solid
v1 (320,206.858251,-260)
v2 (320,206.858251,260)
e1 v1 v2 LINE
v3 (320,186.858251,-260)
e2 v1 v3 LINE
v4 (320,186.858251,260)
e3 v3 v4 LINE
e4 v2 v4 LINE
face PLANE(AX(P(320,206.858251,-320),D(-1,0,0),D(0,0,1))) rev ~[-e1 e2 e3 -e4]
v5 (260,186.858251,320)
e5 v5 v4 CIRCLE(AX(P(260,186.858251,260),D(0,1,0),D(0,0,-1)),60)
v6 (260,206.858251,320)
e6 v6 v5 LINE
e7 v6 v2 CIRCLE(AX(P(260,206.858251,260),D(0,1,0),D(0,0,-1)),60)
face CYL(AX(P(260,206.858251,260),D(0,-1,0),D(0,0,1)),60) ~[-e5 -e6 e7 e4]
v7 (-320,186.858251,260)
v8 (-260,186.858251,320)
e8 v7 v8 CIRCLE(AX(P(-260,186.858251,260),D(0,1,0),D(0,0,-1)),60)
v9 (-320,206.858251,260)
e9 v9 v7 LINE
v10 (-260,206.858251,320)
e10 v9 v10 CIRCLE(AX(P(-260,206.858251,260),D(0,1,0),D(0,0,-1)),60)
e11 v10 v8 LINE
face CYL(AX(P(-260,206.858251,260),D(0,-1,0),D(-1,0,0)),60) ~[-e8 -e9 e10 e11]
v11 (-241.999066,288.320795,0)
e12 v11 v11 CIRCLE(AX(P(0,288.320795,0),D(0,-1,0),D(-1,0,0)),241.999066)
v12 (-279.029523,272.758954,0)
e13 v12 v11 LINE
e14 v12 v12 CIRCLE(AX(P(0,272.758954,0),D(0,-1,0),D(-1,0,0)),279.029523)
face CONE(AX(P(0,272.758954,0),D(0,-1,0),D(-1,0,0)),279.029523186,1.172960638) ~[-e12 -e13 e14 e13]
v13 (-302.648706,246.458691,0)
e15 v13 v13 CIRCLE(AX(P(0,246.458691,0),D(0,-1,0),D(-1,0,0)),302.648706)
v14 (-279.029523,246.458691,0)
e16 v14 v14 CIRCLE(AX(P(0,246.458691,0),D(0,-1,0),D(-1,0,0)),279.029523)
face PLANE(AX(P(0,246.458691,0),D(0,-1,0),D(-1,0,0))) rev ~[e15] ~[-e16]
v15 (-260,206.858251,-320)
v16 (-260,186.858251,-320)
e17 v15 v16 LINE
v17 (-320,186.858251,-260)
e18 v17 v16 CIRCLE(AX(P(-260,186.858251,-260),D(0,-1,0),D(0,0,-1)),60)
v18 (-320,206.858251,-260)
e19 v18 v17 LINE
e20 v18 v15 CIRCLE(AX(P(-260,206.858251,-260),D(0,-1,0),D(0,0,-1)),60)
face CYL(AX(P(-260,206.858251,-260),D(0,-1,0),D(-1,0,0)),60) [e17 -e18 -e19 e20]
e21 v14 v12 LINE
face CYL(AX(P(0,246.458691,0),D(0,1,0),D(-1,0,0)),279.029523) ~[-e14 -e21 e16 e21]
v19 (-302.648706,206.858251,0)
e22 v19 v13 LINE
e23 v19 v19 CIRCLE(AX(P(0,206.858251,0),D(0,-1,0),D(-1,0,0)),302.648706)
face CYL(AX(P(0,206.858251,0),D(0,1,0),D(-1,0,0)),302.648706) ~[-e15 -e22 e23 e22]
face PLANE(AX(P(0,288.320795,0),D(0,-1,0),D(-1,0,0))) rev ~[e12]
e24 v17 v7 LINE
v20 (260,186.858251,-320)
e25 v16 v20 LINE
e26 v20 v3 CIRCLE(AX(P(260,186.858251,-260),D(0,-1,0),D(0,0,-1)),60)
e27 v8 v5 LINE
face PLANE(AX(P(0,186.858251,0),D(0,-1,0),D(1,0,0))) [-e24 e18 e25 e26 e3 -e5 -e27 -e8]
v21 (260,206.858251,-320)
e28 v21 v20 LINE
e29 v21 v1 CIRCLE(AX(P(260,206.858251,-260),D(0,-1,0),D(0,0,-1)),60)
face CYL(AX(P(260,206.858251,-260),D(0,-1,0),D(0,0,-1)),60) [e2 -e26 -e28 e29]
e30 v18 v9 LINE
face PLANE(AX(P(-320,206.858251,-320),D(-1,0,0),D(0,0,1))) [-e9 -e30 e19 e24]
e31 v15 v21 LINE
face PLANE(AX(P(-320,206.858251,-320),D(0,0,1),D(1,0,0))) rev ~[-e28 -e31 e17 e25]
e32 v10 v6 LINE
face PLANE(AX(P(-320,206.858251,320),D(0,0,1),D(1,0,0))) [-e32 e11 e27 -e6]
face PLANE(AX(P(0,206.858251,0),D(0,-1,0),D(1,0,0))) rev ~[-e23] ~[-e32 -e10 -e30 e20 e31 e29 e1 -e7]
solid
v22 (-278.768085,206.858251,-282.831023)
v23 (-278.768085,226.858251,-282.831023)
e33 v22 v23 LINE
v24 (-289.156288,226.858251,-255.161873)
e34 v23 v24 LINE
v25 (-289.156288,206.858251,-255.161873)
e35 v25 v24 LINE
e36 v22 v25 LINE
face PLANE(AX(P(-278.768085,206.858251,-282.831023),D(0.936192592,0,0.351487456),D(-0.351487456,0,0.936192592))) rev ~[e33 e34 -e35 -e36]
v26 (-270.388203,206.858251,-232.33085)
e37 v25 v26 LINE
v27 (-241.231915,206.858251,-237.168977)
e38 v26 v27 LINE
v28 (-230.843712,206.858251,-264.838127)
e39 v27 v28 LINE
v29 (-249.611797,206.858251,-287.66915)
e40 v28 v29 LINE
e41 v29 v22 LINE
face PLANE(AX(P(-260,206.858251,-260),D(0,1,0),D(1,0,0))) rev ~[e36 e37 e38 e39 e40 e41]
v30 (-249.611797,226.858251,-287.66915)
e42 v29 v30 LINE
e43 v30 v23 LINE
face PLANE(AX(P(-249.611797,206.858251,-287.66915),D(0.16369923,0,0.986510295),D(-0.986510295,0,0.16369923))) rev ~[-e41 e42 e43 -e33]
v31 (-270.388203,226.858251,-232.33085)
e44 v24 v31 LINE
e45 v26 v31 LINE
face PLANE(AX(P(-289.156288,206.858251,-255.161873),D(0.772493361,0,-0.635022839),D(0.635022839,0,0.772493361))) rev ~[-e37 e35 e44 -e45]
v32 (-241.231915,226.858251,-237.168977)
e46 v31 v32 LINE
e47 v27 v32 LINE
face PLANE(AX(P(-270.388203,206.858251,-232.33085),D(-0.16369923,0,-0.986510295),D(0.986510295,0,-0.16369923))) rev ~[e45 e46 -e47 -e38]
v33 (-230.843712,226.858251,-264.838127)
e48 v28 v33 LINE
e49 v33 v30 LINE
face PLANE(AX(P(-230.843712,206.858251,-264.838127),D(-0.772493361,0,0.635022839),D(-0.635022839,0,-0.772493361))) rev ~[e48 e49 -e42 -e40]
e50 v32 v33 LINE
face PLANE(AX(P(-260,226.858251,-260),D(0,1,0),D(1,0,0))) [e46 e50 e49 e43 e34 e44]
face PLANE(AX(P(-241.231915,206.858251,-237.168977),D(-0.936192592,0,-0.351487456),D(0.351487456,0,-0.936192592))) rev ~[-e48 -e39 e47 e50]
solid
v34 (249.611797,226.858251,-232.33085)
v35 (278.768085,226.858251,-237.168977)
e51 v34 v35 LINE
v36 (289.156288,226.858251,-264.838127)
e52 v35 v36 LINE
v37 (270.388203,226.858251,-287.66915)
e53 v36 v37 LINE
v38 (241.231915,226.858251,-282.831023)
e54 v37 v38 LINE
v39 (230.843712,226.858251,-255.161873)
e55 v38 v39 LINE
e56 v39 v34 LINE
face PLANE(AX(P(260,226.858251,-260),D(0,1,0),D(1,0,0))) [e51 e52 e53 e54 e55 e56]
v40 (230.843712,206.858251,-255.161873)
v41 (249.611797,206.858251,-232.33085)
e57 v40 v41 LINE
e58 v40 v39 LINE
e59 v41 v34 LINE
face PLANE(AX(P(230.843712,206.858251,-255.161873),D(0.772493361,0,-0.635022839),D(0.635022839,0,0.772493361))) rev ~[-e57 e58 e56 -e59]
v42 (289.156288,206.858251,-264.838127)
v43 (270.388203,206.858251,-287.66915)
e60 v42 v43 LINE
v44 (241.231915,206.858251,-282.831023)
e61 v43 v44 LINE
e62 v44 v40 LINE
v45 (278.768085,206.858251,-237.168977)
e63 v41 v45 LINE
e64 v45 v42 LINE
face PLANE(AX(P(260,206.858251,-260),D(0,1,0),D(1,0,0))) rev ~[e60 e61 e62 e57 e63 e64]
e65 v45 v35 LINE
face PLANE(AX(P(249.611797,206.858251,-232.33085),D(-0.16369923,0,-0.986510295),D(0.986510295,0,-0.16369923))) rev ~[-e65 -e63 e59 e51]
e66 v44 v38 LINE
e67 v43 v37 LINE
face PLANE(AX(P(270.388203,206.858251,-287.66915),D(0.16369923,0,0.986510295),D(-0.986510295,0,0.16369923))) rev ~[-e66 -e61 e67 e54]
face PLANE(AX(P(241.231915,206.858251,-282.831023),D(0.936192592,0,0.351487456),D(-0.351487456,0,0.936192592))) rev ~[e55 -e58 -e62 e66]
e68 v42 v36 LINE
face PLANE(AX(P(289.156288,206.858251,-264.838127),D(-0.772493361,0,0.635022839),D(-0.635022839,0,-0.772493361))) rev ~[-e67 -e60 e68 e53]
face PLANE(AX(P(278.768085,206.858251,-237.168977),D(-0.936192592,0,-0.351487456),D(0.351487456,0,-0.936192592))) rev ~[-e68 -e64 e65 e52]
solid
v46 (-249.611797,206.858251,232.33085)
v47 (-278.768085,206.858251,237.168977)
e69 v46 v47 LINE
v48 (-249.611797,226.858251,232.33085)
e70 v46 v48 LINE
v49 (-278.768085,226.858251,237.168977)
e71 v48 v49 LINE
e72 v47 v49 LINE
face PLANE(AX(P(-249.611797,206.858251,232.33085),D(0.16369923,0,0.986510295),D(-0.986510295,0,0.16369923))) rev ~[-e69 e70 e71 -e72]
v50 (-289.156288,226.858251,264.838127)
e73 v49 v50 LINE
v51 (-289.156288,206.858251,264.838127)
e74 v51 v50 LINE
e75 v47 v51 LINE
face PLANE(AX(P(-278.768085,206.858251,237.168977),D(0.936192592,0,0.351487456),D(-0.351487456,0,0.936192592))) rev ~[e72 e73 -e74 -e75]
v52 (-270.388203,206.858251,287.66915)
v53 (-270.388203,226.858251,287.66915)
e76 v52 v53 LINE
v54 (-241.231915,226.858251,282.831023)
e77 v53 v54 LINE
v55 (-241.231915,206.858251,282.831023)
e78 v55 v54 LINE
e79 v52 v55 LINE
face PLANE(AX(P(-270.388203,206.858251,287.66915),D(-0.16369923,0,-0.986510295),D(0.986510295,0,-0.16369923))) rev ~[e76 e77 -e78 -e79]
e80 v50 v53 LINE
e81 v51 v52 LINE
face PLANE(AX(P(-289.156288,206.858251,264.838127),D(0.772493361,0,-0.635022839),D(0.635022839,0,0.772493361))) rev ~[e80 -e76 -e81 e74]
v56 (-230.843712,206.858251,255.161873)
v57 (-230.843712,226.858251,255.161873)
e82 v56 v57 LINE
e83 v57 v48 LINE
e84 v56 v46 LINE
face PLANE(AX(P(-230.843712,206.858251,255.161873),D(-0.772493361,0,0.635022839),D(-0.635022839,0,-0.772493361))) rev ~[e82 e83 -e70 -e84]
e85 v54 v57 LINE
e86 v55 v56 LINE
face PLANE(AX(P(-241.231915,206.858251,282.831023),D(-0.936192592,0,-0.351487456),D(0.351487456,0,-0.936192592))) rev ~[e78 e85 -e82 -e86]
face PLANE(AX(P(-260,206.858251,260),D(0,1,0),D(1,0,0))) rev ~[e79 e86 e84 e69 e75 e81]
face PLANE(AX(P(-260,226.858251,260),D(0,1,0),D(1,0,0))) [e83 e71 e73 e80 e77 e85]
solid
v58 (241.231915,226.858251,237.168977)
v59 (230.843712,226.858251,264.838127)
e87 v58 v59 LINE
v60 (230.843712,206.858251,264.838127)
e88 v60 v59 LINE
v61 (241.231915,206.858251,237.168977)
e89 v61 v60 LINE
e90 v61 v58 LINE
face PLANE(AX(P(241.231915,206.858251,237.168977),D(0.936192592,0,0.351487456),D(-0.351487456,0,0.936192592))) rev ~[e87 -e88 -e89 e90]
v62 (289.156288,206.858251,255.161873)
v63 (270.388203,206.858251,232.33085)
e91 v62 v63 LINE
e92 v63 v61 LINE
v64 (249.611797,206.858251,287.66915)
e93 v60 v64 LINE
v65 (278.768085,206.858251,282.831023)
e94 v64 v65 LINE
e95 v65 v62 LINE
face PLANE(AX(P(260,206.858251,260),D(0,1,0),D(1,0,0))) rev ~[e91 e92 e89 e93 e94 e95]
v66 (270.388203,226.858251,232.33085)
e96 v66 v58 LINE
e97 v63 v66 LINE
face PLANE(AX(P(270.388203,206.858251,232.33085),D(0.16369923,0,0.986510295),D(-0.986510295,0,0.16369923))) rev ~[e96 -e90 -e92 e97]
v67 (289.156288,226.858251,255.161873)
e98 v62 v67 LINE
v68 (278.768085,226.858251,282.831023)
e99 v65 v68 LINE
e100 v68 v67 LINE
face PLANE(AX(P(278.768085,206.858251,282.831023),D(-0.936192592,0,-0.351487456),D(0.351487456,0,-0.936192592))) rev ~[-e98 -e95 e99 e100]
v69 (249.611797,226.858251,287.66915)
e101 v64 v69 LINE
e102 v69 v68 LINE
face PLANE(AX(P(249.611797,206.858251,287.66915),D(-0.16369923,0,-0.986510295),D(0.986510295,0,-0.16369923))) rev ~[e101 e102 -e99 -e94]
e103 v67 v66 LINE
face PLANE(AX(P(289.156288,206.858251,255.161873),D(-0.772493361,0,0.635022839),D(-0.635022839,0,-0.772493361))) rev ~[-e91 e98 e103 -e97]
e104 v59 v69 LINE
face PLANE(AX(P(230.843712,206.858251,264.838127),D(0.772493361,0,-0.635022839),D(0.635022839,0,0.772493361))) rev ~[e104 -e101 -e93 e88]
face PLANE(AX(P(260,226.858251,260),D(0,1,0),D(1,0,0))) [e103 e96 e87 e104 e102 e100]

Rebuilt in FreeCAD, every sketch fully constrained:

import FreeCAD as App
import Part
import Sketcher

V = App.Vector
Q = App.Units.Quantity


def edges_at(feature, points):
    """Names of the edges that pass closest to the given points."""
    edges = feature.Shape.Edges
    near = lambda p: min(range(len(edges)), key=lambda i: edges[i].distToShape(Part.Vertex(*p))[0])
    return sorted({f"Edge{near(p) + 1}" for p in points})

doc = App.newDocument("Part")
body = doc.addObject("PartDesign::Body", "Body")

# Sketch on XY plane
sketch1 = body.newObject("Sketcher::SketchObject", "Sketch")
sketch1.AttachmentSupport = (doc.getObject("XY_Plane"), [""])
sketch1.MapMode = "FlatFace"
sketch1.addGeometry(Part.LineSegment(V(-302.648706, 246.458691, 0), V(-302.648706, 206.858251, 0)), False)
sketch1.addGeometry(Part.LineSegment(V(-302.648706, 206.858251, 0), V(0, 206.858251, 0)), False)
sketch1.addGeometry(Part.LineSegment(V(0, 206.858251, 0), V(0, 288.320795, 0)), False)
sketch1.addGeometry(Part.LineSegment(V(0, 288.320795, 0), V(-241.999066, 288.320795, 0)), False)
sketch1.addGeometry(Part.LineSegment(V(-241.999066, 288.320795, 0), V(-279.029523, 272.758954, 0)), False)
sketch1.addGeometry(Part.LineSegment(V(-279.029523, 272.758954, 0), V(-279.029523, 246.458691, 0)), False)
sketch1.addGeometry(Part.LineSegment(V(-279.029523, 246.458691, 0), V(-302.648706, 246.458691, 0)), False)
sketch1.addConstraint(Sketcher.Constraint("Coincident", 0, 2, 1, 1))
sketch1.addConstraint(Sketcher.Constraint("Coincident", 1, 2, 2, 1))
sketch1.addConstraint(Sketcher.Constraint("Coincident", 2, 2, 3, 1))
sketch1.addConstraint(Sketcher.Constraint("Coincident", 3, 2, 4, 1))
sketch1.addConstraint(Sketcher.Constraint("Coincident", 4, 2, 5, 1))
sketch1.addConstraint(Sketcher.Constraint("Coincident", 5, 2, 6, 1))
sketch1.addConstraint(Sketcher.Constraint("Coincident", 6, 2, 0, 1))
sketch1.addConstraint(Sketcher.Constraint("Vertical", 0))
sketch1.addConstraint(Sketcher.Constraint("Horizontal", 1))
sketch1.addConstraint(Sketcher.Constraint("Vertical", 2))
sketch1.addConstraint(Sketcher.Constraint("Horizontal", 3))
sketch1.addConstraint(Sketcher.Constraint("Vertical", 5))
sketch1.addConstraint(Sketcher.Constraint("Horizontal", 6))
sketch1.addConstraint(Sketcher.Constraint("PointOnObject", 1, 2, -2))
sketch1.addConstraint(Sketcher.Constraint("DistanceY", 0, 2, 0, 1, Q("39.60044 mm")))
sketch1.addConstraint(Sketcher.Constraint("Distance", 4, Q("40.16747 mm")))
sketch1.addConstraint(Sketcher.Constraint("DistanceX", 1, 1, 1, 2, Q("302.648706 mm")))
sketch1.addConstraint(Sketcher.Constraint("DistanceX", 3, 2, 3, 1, Q("241.999066 mm")))
sketch1.addConstraint(Sketcher.Constraint("DistanceX", 6, 2, 6, 1, Q("23.619183 mm")))
sketch1.addConstraint(Sketcher.Constraint("DistanceY", 2, 1, 2, 2, Q("81.462544 mm")))
sketch1.addConstraint(Sketcher.Constraint("DistanceY", -1, 1, 0, 2, Q("206.858251 mm")))
revolution = body.newObject("PartDesign::Revolution", "Revolution")
revolution.Profile = sketch1
revolution.ReferenceAxis = (sketch1, ["V_Axis"])
revolution.Angle = 360

# Sketch on XZ plane
sketch2 = body.newObject("Sketcher::SketchObject", "Sketch001")
sketch2.AttachmentSupport = (doc.getObject("XZ_Plane"), [""])
sketch2.MapMode = "FlatFace"
sketch2.AttachmentOffset = App.Placement(V(0, 0, -206.858251), App.Rotation())
sketch2.addGeometry(Part.LineSegment(V(-320, 320, 0), V(-320, -320, 0)), False)
sketch2.addGeometry(Part.LineSegment(V(-320, -320, 0), V(320, -320, 0)), False)
sketch2.addGeometry(Part.LineSegment(V(320, -320, 0), V(320, 320, 0)), False)
sketch2.addGeometry(Part.LineSegment(V(320, 320, 0), V(-320, 320, 0)), False)
sketch2.addConstraint(Sketcher.Constraint("Coincident", 0, 2, 1, 1))
sketch2.addConstraint(Sketcher.Constraint("Coincident", 1, 2, 2, 1))
sketch2.addConstraint(Sketcher.Constraint("Coincident", 2, 2, 3, 1))
sketch2.addConstraint(Sketcher.Constraint("Coincident", 3, 2, 0, 1))
sketch2.addConstraint(Sketcher.Constraint("Vertical", 0))
sketch2.addConstraint(Sketcher.Constraint("Horizontal", 1))
sketch2.addConstraint(Sketcher.Constraint("Vertical", 2))
sketch2.addConstraint(Sketcher.Constraint("Horizontal", 3))
sketch2.addConstraint(Sketcher.Constraint("Symmetric", 0, 2, 2, 2, -1, 1))
sketch2.addConstraint(Sketcher.Constraint("Equal", 3, 0))
sketch2.addConstraint(Sketcher.Constraint("DistanceX", 1, 1, 1, 2, Q("640 mm")))
pad1 = body.newObject("PartDesign::Pad", "Pad")
pad1.Profile = sketch2
pad1.Length = 20
doc.recompute()

fillet = body.newObject("PartDesign::Fillet", "Fillet")
fillet.Base = (pad1, edges_at(pad1, [
    (-320, 196.858, 320),
    (-320, 196.858, -320),
    (320, 196.858, -320),
    (320, 196.858, 320),
]))
fillet.Radius = 60
body2 = doc.addObject("PartDesign::Body", "Body001")

# Sketch on XZ plane
sketch3 = body2.newObject("Sketcher::SketchObject", "Sketch002")
sketch3.AttachmentSupport = (doc.getObject("XZ_Plane001"), [""])
sketch3.MapMode = "FlatFace"
sketch3.AttachmentOffset = App.Placement(V(0, 0, -206.858251), App.Rotation())
sketch3.addGeometry(Part.LineSegment(V(278.768085, 282.831023, 0), V(289.156288, 255.161873, 0)), False)
sketch3.addGeometry(Part.LineSegment(V(289.156288, 255.161873, 0), V(270.388203, 232.33085, 0)), False)
sketch3.addGeometry(Part.LineSegment(V(270.388203, 232.33085, 0), V(241.231915, 237.168977, 0)), False)
sketch3.addGeometry(Part.LineSegment(V(241.231915, 237.168977, 0), V(230.843712, 264.838127, 0)), False)
sketch3.addGeometry(Part.LineSegment(V(230.843712, 264.838127, 0), V(249.611797, 287.66915, 0)), False)
sketch3.addGeometry(Part.LineSegment(V(249.611797, 287.66915, 0), V(278.768085, 282.831023, 0)), False)
sketch3.addConstraint(Sketcher.Constraint("Coincident", 0, 2, 1, 1))
sketch3.addConstraint(Sketcher.Constraint("Coincident", 1, 2, 2, 1))
sketch3.addConstraint(Sketcher.Constraint("Coincident", 2, 2, 3, 1))
sketch3.addConstraint(Sketcher.Constraint("Coincident", 3, 2, 4, 1))
sketch3.addConstraint(Sketcher.Constraint("Coincident", 4, 2, 5, 1))
sketch3.addConstraint(Sketcher.Constraint("Coincident", 5, 2, 0, 1))
sketch3.addConstraint(Sketcher.Constraint("Parallel", 0, 3))
sketch3.addConstraint(Sketcher.Constraint("Parallel", 1, 4))
sketch3.addConstraint(Sketcher.Constraint("Parallel", 2, 5))
sketch3.addConstraint(Sketcher.Constraint("Equal", 0, 1))
sketch3.addConstraint(Sketcher.Constraint("Equal", 1, 2))
sketch3.addConstraint(Sketcher.Constraint("Equal", 2, 3))
sketch3.addConstraint(Sketcher.Constraint("DistanceY", 1, 2, 4, 2, Q("55.3383 mm")))
sketch3.addConstraint(Sketcher.Constraint("DistanceX", -1, 1, 0, 2, Q("289.156288 mm")))
sketch3.addConstraint(Sketcher.Constraint("DistanceY", -1, 1, 1, 2, Q("232.33085 mm")))
sketch3.addConstraint(Sketcher.Constraint("DistanceX", -1, 1, 3, 2, Q("230.843712 mm")))
sketch3.addConstraint(Sketcher.Constraint("DistanceX", 2, 2, 1, 2, Q("29.156288 mm")))
sketch3.addConstraint(Sketcher.Constraint("DistanceY", 2, 2, 3, 2, Q("27.66915 mm")))
pad2 = body2.newObject("PartDesign::Pad", "Pad001")
pad2.Profile = sketch3
pad2.Length = 20
pad2.Reversed = True
body3 = doc.addObject("PartDesign::Body", "Body002")

# Sketch on XZ plane
sketch4 = body3.newObject("Sketcher::SketchObject", "Sketch003")
sketch4.AttachmentSupport = (doc.getObject("XZ_Plane002"), [""])
sketch4.MapMode = "FlatFace"
sketch4.AttachmentOffset = App.Placement(V(0, 0, -206.858251), App.Rotation())
sketch4.addGeometry(Part.LineSegment(V(-241.231915, 282.831023, 0), V(-230.843712, 255.161873, 0)), False)
sketch4.addGeometry(Part.LineSegment(V(-230.843712, 255.161873, 0), V(-249.611797, 232.33085, 0)), False)
sketch4.addGeometry(Part.LineSegment(V(-249.611797, 232.33085, 0), V(-278.768085, 237.168977, 0)), False)
sketch4.addGeometry(Part.LineSegment(V(-278.768085, 237.168977, 0), V(-289.156288, 264.838127, 0)), False)
sketch4.addGeometry(Part.LineSegment(V(-289.156288, 264.838127, 0), V(-270.388203, 287.66915, 0)), False)
sketch4.addGeometry(Part.LineSegment(V(-270.388203, 287.66915, 0), V(-241.231915, 282.831023, 0)), False)
sketch4.addConstraint(Sketcher.Constraint("Coincident", 0, 2, 1, 1))
sketch4.addConstraint(Sketcher.Constraint("Coincident", 1, 2, 2, 1))
sketch4.addConstraint(Sketcher.Constraint("Coincident", 2, 2, 3, 1))
sketch4.addConstraint(Sketcher.Constraint("Coincident", 3, 2, 4, 1))
sketch4.addConstraint(Sketcher.Constraint("Coincident", 4, 2, 5, 1))
sketch4.addConstraint(Sketcher.Constraint("Coincident", 5, 2, 0, 1))
sketch4.addConstraint(Sketcher.Constraint("Parallel", 0, 3))
sketch4.addConstraint(Sketcher.Constraint("Parallel", 1, 4))
sketch4.addConstraint(Sketcher.Constraint("Parallel", 2, 5))
sketch4.addConstraint(Sketcher.Constraint("Equal", 0, 1))
sketch4.addConstraint(Sketcher.Constraint("Equal", 1, 2))
sketch4.addConstraint(Sketcher.Constraint("Equal", 2, 3))
sketch4.addConstraint(Sketcher.Constraint("DistanceY", 1, 2, 4, 2, Q("55.3383 mm")))
sketch4.addConstraint(Sketcher.Constraint("DistanceX", 0, 2, -1, 1, Q("230.843712 mm")))
sketch4.addConstraint(Sketcher.Constraint("DistanceY", -1, 1, 1, 2, Q("232.33085 mm")))
sketch4.addConstraint(Sketcher.Constraint("DistanceX", 3, 2, -1, 1, Q("289.156288 mm")))
sketch4.addConstraint(Sketcher.Constraint("DistanceX", 2, 2, 1, 2, Q("29.156288 mm")))
sketch4.addConstraint(Sketcher.Constraint("DistanceY", 2, 2, 3, 2, Q("27.66915 mm")))
pad3 = body3.newObject("PartDesign::Pad", "Pad002")
pad3.Profile = sketch4
pad3.Length = 20
pad3.Reversed = True
body4 = doc.addObject("PartDesign::Body", "Body003")

# Sketch on XZ plane
sketch5 = body4.newObject("Sketcher::SketchObject", "Sketch004")
sketch5.AttachmentSupport = (doc.getObject("XZ_Plane003"), [""])
sketch5.MapMode = "FlatFace"
sketch5.AttachmentOffset = App.Placement(V(0, 0, -206.858251), App.Rotation())
sketch5.addGeometry(Part.LineSegment(V(230.843712, -255.161873, 0), V(249.611797, -232.33085, 0)), False)
sketch5.addGeometry(Part.LineSegment(V(249.611797, -232.33085, 0), V(278.768085, -237.168977, 0)), False)
sketch5.addGeometry(Part.LineSegment(V(278.768085, -237.168977, 0), V(289.156288, -264.838127, 0)), False)
sketch5.addGeometry(Part.LineSegment(V(289.156288, -264.838127, 0), V(270.388203, -287.66915, 0)), False)
sketch5.addGeometry(Part.LineSegment(V(270.388203, -287.66915, 0), V(241.231915, -282.831023, 0)), False)
sketch5.addGeometry(Part.LineSegment(V(241.231915, -282.831023, 0), V(230.843712, -255.161873, 0)), False)
sketch5.addConstraint(Sketcher.Constraint("Coincident", 0, 2, 1, 1))
sketch5.addConstraint(Sketcher.Constraint("Coincident", 1, 2, 2, 1))
sketch5.addConstraint(Sketcher.Constraint("Coincident", 2, 2, 3, 1))
sketch5.addConstraint(Sketcher.Constraint("Coincident", 3, 2, 4, 1))
sketch5.addConstraint(Sketcher.Constraint("Coincident", 4, 2, 5, 1))
sketch5.addConstraint(Sketcher.Constraint("Coincident", 5, 2, 0, 1))
sketch5.addConstraint(Sketcher.Constraint("Parallel", 0, 3))
sketch5.addConstraint(Sketcher.Constraint("Parallel", 1, 4))
sketch5.addConstraint(Sketcher.Constraint("Parallel", 2, 5))
sketch5.addConstraint(Sketcher.Constraint("Equal", 0, 1))
sketch5.addConstraint(Sketcher.Constraint("Equal", 1, 2))
sketch5.addConstraint(Sketcher.Constraint("Equal", 2, 3))
sketch5.addConstraint(Sketcher.Constraint("DistanceY", 3, 2, 0, 2, Q("55.3383 mm")))
sketch5.addConstraint(Sketcher.Constraint("DistanceY", 0, 2, -1, 1, Q("232.33085 mm")))
sketch5.addConstraint(Sketcher.Constraint("DistanceX", -1, 1, 2, 2, Q("289.156288 mm")))
sketch5.addConstraint(Sketcher.Constraint("DistanceX", -1, 1, 5, 2, Q("230.843712 mm")))
sketch5.addConstraint(Sketcher.Constraint("DistanceX", 0, 2, 1, 2, Q("29.156288 mm")))
sketch5.addConstraint(Sketcher.Constraint("DistanceY", 2, 2, 1, 2, Q("27.66915 mm")))
pad4 = body4.newObject("PartDesign::Pad", "Pad003")
pad4.Profile = sketch5
pad4.Length = 20
pad4.Reversed = True
body5 = doc.addObject("PartDesign::Body", "Body004")

# Sketch on XZ plane
sketch6 = body5.newObject("Sketcher::SketchObject", "Sketch005")
sketch6.AttachmentSupport = (doc.getObject("XZ_Plane004"), [""])
sketch6.MapMode = "FlatFace"
sketch6.AttachmentOffset = App.Placement(V(0, 0, -206.858251), App.Rotation())
sketch6.addGeometry(Part.LineSegment(V(-289.156288, -255.161873, 0), V(-270.388203, -232.33085, 0)), False)
sketch6.addGeometry(Part.LineSegment(V(-270.388203, -232.33085, 0), V(-241.231915, -237.168977, 0)), False)
sketch6.addGeometry(Part.LineSegment(V(-241.231915, -237.168977, 0), V(-230.843712, -264.838127, 0)), False)
sketch6.addGeometry(Part.LineSegment(V(-230.843712, -264.838127, 0), V(-249.611797, -287.66915, 0)), False)
sketch6.addGeometry(Part.LineSegment(V(-249.611797, -287.66915, 0), V(-278.768085, -282.831023, 0)), False)
sketch6.addGeometry(Part.LineSegment(V(-278.768085, -282.831023, 0), V(-289.156288, -255.161873, 0)), False)
sketch6.addConstraint(Sketcher.Constraint("Coincident", 0, 2, 1, 1))
sketch6.addConstraint(Sketcher.Constraint("Coincident", 1, 2, 2, 1))
sketch6.addConstraint(Sketcher.Constraint("Coincident", 2, 2, 3, 1))
sketch6.addConstraint(Sketcher.Constraint("Coincident", 3, 2, 4, 1))
sketch6.addConstraint(Sketcher.Constraint("Coincident", 4, 2, 5, 1))
sketch6.addConstraint(Sketcher.Constraint("Coincident", 5, 2, 0, 1))
sketch6.addConstraint(Sketcher.Constraint("Parallel", 0, 3))
sketch6.addConstraint(Sketcher.Constraint("Parallel", 1, 4))
sketch6.addConstraint(Sketcher.Constraint("Parallel", 2, 5))
sketch6.addConstraint(Sketcher.Constraint("Equal", 0, 1))
sketch6.addConstraint(Sketcher.Constraint("Equal", 1, 2))
sketch6.addConstraint(Sketcher.Constraint("Equal", 2, 3))
sketch6.addConstraint(Sketcher.Constraint("DistanceY", 3, 2, 0, 2, Q("55.3383 mm")))
sketch6.addConstraint(Sketcher.Constraint("DistanceY", 0, 2, -1, 1, Q("232.33085 mm")))
sketch6.addConstraint(Sketcher.Constraint("DistanceX", 2, 2, -1, 1, Q("230.843712 mm")))
sketch6.addConstraint(Sketcher.Constraint("DistanceX", 5, 2, -1, 1, Q("289.156288 mm")))
sketch6.addConstraint(Sketcher.Constraint("DistanceX", 0, 2, 1, 2, Q("29.156288 mm")))
sketch6.addConstraint(Sketcher.Constraint("DistanceY", 2, 2, 1, 2, Q("27.66915 mm")))
pad5 = body5.newObject("PartDesign::Pad", "Pad004")
pad5.Profile = sketch6
pad5.Length = 20
pad5.Reversed = True

doc.recompute()
